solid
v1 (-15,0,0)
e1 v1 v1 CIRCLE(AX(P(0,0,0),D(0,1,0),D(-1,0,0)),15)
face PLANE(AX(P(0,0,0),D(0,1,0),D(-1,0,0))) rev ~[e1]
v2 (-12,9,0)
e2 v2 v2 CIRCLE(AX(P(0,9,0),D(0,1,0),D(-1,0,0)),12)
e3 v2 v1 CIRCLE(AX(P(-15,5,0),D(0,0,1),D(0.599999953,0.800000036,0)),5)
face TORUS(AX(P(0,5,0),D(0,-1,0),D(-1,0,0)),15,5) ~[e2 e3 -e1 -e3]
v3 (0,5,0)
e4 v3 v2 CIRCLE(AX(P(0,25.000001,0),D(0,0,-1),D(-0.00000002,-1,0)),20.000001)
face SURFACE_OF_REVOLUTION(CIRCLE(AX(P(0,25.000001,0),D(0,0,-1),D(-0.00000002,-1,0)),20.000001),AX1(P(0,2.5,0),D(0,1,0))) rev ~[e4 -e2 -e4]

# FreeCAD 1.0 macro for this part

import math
import FreeCAD as App
import Part
import Sketcher
Q = App.Units.Quantity

doc = App.newDocument("Part")
params = doc.addObject("Spreadsheet::Sheet", "Params")
for row, (alias, value) in enumerate([
    ("sketch1_radius", "20.000001 mm"),
    ("sketch1_radius2", "5 mm"),
    ("revolution_angle", "360 deg"),
], start=1):
    params.set(f"A{row}", alias)
    params.set(f"B{row}", "=" + value)
    params.setAlias(f"B{row}", alias)

body = doc.addObject("PartDesign::Body", "Body")

sketch1 = body.newObject("Sketcher::SketchObject", "Sketch")
sketch1.AttachmentSupport = (doc.getObject("XY_Plane"), [""])
sketch1.MapMode = "FlatFace"
sketch1.addGeometry(Part.ArcOfCircle(Part.Circle(App.Vector(0, 25, 0), App.Vector(0, 0, 1), 20), math.radians(-127), math.radians(-90)), False)
sketch1.addGeometry(Part.ArcOfCircle(Part.Circle(App.Vector(-15, 5, 0), App.Vector(0, 0, 1), 5), math.radians(53), math.radians(270)), False)
sketch1.addGeometry(Part.LineSegment(App.Vector(-15, 0, 0), App.Vector(0, 0, 0)), False)
sketch1.addGeometry(Part.LineSegment(App.Vector(0, 0, 0), App.Vector(0, 5, 0)), False)
sketch1.addConstraint(Sketcher.Constraint("Tangent", 0, 1, 1, 1))
sketch1.addConstraint(Sketcher.Constraint("Tangent", 1, 2, 2, 1))
sketch1.addConstraint(Sketcher.Constraint("Coincident", 2, 2, 3, 1))
sketch1.addConstraint(Sketcher.Constraint("Coincident", 3, 2, 0, 2))
sketch1.addConstraint(Sketcher.Constraint("Horizontal", 2))
sketch1.addConstraint(Sketcher.Constraint("Vertical", 3))
sketch1.addConstraint(Sketcher.Constraint("Coincident", 2, 2, -1, 1))
sketch1.addConstraint(Sketcher.Constraint("PointOnObject", 0, 3, -2))
sketch1.addConstraint(Sketcher.Constraint("Horizontal", 1, 3, 3, 2))
sketch1.addConstraint(Sketcher.Constraint("Radius", 0, Q("20.000001 mm")))
sketch1.addConstraint(Sketcher.Constraint("Radius", 1, Q("5 mm")))
sketch1.setExpression("Constraints[9]", "Params.sketch1_radius")
sketch1.setExpression("Constraints[10]", "Params.sketch1_radius2")
revolution = body.newObject("PartDesign::Revolution", "Revolution")
revolution.Profile = sketch1
revolution.ReferenceAxis = (sketch1, ["V_Axis"])
revolution.setExpression("Angle", "Params.revolution_angle")

doc.recompute()
